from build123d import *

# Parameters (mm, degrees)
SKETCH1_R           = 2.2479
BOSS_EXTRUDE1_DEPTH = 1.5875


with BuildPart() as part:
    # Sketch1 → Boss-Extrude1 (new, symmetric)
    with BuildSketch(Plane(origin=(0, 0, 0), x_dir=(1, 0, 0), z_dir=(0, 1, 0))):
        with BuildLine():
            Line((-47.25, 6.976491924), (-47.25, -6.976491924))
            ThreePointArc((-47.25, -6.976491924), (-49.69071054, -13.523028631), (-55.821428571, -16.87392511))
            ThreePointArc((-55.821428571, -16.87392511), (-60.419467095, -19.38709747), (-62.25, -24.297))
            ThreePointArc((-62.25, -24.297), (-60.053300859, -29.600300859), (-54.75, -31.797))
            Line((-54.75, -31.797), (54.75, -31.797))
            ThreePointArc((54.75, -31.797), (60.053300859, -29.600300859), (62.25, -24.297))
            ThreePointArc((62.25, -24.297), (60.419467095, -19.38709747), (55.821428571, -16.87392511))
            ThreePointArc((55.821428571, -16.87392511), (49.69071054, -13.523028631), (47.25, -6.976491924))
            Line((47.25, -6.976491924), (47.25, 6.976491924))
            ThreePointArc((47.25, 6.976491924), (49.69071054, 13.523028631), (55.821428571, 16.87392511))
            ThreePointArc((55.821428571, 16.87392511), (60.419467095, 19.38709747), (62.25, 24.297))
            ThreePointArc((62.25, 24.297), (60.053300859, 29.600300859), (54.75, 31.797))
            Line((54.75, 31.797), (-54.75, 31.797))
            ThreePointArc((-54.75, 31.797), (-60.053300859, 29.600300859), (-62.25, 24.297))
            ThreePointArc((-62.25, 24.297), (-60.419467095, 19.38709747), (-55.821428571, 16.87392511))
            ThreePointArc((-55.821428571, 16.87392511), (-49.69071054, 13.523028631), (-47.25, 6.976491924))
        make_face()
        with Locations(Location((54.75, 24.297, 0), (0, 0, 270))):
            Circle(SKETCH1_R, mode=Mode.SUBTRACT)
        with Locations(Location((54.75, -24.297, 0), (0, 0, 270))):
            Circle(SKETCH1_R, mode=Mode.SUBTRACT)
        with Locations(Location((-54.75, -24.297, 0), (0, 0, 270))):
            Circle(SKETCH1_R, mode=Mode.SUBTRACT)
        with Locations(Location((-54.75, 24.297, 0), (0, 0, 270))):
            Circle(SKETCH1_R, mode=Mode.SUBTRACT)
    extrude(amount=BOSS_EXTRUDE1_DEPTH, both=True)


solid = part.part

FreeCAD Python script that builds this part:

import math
import FreeCAD as App
import Part
import Sketcher

doc = App.newDocument("Part")
body = doc.addObject("PartDesign::Body", "Body")

# Sketch on XZ plane
sketch1 = doc.addObject("Sketcher::SketchObject", "Sketch")
body.addObject(sketch1)
sketch1.AttachmentSupport = (doc.XZ_Plane, [""])
sketch1.MapMode = "FlatFace"
sketch1.addGeometry([
    Part.LineSegment(App.Vector(-47.2, -7, 0), App.Vector(-47.2, 7, 0)),  # 0
    Part.ArcOfCircle(Part.Circle(App.Vector(-57.3, 7, 0), App.Vector(0, 0, 1), 10), math.radians(0), math.radians(82)),  # 1
    Part.ArcOfCircle(Part.Circle(App.Vector(-54.7, 24.3, 0), App.Vector(0, 0, 1), 7.5), math.radians(-180), math.radians(-98)),  # 2
    Part.ArcOfCircle(Part.Circle(App.Vector(-54.8, 24.3, 0), App.Vector(0, 0, 1), 7.5), math.radians(90), math.radians(180)),  # 3
    Part.LineSegment(App.Vector(-54.8, 31.8, 0), App.Vector(54.8, 31.8, 0)),  # 4
    Part.ArcOfCircle(Part.Circle(App.Vector(54.8, 24.3, 0), App.Vector(0, 0, 1), 7.5), math.radians(0), math.radians(90)),  # 5
    Part.ArcOfCircle(Part.Circle(App.Vector(54.7, 24.3, 0), App.Vector(0, 0, 1), 7.5), math.radians(-82), math.radians(0)),  # 6
    Part.ArcOfCircle(Part.Circle(App.Vector(57.3, 7, 0), App.Vector(0, 0, 1), 10), math.radians(98), math.radians(180)),  # 7
    Part.LineSegment(App.Vector(47.2, 7, 0), App.Vector(47.2, -7, 0)),  # 8
    Part.ArcOfCircle(Part.Circle(App.Vector(57.3, -7, 0), App.Vector(0, 0, 1), 10), math.radians(180), math.radians(262)),  # 9
    Part.ArcOfCircle(Part.Circle(App.Vector(54.7, -24.3, 0), App.Vector(0, 0, 1), 7.5), math.radians(0), math.radians(82)),  # 10
    Part.ArcOfCircle(Part.Circle(App.Vector(54.8, -24.3, 0), App.Vector(0, 0, 1), 7.5), math.radians(-90), math.radians(0)),  # 11
    Part.LineSegment(App.Vector(54.8, -31.8, 0), App.Vector(-54.8, -31.8, 0)),  # 12
    Part.ArcOfCircle(Part.Circle(App.Vector(-54.8, -24.3, 0), App.Vector(0, 0, 1), 7.5), math.radians(180), math.radians(270)),  # 13
    Part.ArcOfCircle(Part.Circle(App.Vector(-54.7, -24.3, 0), App.Vector(0, 0, 1), 7.5), math.radians(98), math.radians(180)),  # 14
    Part.ArcOfCircle(Part.Circle(App.Vector(-57.3, -7, 0), App.Vector(0, 0, 1), 10), math.radians(-82), math.radians(0)),  # 15
    Part.Circle(App.Vector(-54.8, 24.3, 0), App.Vector(0, 0, 1), 2.2),  # 16
    Part.Circle(App.Vector(54.8, 24.3, 0), App.Vector(0, 0, 1), 2.2),  # 17
    Part.Circle(App.Vector(-54.8, -24.3, 0), App.Vector(0, 0, 1), 2.2),  # 18
    Part.Circle(App.Vector(54.8, -24.3, 0), App.Vector(0, 0, 1), 2.2),  # 19
], False)
sketch1.addConstraint([
    Sketcher.Constraint("Tangent", 0, 2, 1, 1),
    Sketcher.Constraint("Tangent", 1, 2, 2, 2),
    Sketcher.Constraint("Tangent", 2, 1, 3, 2),
    Sketcher.Constraint("Tangent", 3, 1, 4, 1),
    Sketcher.Constraint("Tangent", 4, 2, 5, 2),
    Sketcher.Constraint("Tangent", 5, 1, 6, 2),
    Sketcher.Constraint("Tangent", 6, 1, 7, 1),
    Sketcher.Constraint("Tangent", 7, 2, 8, 1),
    Sketcher.Constraint("Tangent", 8, 2, 9, 1),
    Sketcher.Constraint("Tangent", 9, 2, 10, 2),
    Sketcher.Constraint("Tangent", 10, 1, 11, 2),
    Sketcher.Constraint("Tangent", 11, 1, 12, 1),
    Sketcher.Constraint("Tangent", 12, 2, 13, 2),
    Sketcher.Constraint("Tangent", 13, 1, 14, 2),
    Sketcher.Constraint("Tangent", 14, 1, 15, 1),
    Sketcher.Constraint("Tangent", 15, 2, 0, 1),
    Sketcher.Constraint("Vertical", 0),
    Sketcher.Constraint("Horizontal", 4),
    Sketcher.Constraint("Vertical", 8),
    Sketcher.Constraint("Horizontal", 12),
    Sketcher.Constraint("Coincident", 16, 3, 2, 3),
    Sketcher.Constraint("Coincident", 17, 3, 5, 3),
    Sketcher.Constraint("Coincident", 18, 3, 13, 3),
    Sketcher.Constraint("Coincident", 19, 3, 10, 3),
    Sketcher.Constraint("Equal", 2, 3),
    Sketcher.Constraint("Equal", 3, 5),
    Sketcher.Constraint("Equal", 5, 6),
    Sketcher.Constraint("Equal", 1, 7),
    Sketcher.Constraint("Equal", 7, 9),
    Sketcher.Constraint("Equal", 6, 10),
    Sketcher.Constraint("Equal", 10, 11),
    Sketcher.Constraint("Equal", 11, 13),
    Sketcher.Constraint("Equal", 13, 14),
    Sketcher.Constraint("Equal", 9, 15),
    Sketcher.Constraint("Equal", 16, 17),
    Sketcher.Constraint("Equal", 17, 18),
    Sketcher.Constraint("Equal", 18, 19),
    Sketcher.Constraint("Symmetric", 1, 3, 9, 3, -1, 1),
    Sketcher.Constraint("Symmetric", 5, 3, 13, 3, -1, 1),
    Sketcher.Constraint("Symmetric", 2, 1, 5, 1, -2),
    Sketcher.Constraint("Horizontal", 17, 3, 2, 1),
    Sketcher.Constraint("Horizontal", 19, 3, 10, 1),
    Sketcher.Constraint("Horizontal", 10, 1, 13, 1),
    Sketcher.Constraint("Radius", 1, 10.0),
    Sketcher.Constraint("Radius", 2, 7.5),
    Sketcher.Constraint("DistanceX", 4, 1, 4, 2, 109.5),
    Sketcher.Constraint("DistanceX", 1, 3, 5, 3, 112.0),
    Sketcher.Constraint("Diameter", 16, 4.4958),
    Sketcher.Constraint("DistanceY", -1, 1, 2, 3, 24.297),
])
pad1 = doc.addObject("PartDesign::Pad", "Pad")
body.addObject(pad1)
pad1.Profile = sketch1
pad1.Length = 3.175
pad1.Midplane = True

doc.recompute()
